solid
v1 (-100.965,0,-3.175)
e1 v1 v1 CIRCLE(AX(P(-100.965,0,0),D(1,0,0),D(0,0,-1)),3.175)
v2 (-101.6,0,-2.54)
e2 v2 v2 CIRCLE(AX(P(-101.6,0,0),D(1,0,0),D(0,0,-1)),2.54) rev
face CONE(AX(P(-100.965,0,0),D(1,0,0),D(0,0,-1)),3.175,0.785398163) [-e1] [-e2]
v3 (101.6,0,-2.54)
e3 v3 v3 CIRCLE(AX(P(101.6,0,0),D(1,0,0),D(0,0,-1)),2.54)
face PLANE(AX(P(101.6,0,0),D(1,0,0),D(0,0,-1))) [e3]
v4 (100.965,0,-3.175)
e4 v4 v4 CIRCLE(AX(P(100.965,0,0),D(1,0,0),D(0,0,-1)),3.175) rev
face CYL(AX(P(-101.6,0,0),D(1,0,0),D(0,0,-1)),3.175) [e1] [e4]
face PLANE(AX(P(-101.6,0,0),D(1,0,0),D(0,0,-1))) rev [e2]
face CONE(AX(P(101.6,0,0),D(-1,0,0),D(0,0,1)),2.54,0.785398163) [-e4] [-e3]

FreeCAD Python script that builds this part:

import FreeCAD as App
import Part
import Sketcher
from FreeCAD import Vector
Q = App.Units.Quantity


def edges_at(feature, points):
    """Names of the edges that pass closest to the given points."""
    edges = feature.Shape.Edges
    near = lambda p: min(range(len(edges)), key=lambda i: edges[i].distToShape(Part.Vertex(*p))[0])
    return sorted({f"Edge{near(p) + 1}" for p in points})

doc = App.newDocument("Part")
body = doc.addObject("PartDesign::Body", "Body")

sketch1 = body.newObject("Sketcher::SketchObject", "Sketch")
sketch1.AttachmentSupport = (doc.getObject("YZ_Plane"), [""])
sketch1.MapMode = "FlatFace"
sketch1.addGeometry(Part.Circle(Vector(0, 0, 0), Vector(0, 0, 1), 3.2), False)
sketch1.addConstraint(Sketcher.Constraint("Coincident", 0, 3, -1, 1))
sketch1.addConstraint(Sketcher.Constraint("Diameter", 0, Q("0.25 in")))
pad1 = body.newObject("PartDesign::Pad", "Pad")
pad1.Profile = sketch1
pad1.Type = "TwoLengths"
pad1.Length = Q("4 in")
pad1.Length2 = Q("4 in")
doc.recompute()

chamfer = body.newObject("PartDesign::Chamfer", "Chamfer")
chamfer.Base = (pad1, edges_at(pad1, [(-101.6, 0, 3.175), (101.6, 0, 3.175)]))
chamfer.Size = Q("0.025 in")

doc.recompute()
